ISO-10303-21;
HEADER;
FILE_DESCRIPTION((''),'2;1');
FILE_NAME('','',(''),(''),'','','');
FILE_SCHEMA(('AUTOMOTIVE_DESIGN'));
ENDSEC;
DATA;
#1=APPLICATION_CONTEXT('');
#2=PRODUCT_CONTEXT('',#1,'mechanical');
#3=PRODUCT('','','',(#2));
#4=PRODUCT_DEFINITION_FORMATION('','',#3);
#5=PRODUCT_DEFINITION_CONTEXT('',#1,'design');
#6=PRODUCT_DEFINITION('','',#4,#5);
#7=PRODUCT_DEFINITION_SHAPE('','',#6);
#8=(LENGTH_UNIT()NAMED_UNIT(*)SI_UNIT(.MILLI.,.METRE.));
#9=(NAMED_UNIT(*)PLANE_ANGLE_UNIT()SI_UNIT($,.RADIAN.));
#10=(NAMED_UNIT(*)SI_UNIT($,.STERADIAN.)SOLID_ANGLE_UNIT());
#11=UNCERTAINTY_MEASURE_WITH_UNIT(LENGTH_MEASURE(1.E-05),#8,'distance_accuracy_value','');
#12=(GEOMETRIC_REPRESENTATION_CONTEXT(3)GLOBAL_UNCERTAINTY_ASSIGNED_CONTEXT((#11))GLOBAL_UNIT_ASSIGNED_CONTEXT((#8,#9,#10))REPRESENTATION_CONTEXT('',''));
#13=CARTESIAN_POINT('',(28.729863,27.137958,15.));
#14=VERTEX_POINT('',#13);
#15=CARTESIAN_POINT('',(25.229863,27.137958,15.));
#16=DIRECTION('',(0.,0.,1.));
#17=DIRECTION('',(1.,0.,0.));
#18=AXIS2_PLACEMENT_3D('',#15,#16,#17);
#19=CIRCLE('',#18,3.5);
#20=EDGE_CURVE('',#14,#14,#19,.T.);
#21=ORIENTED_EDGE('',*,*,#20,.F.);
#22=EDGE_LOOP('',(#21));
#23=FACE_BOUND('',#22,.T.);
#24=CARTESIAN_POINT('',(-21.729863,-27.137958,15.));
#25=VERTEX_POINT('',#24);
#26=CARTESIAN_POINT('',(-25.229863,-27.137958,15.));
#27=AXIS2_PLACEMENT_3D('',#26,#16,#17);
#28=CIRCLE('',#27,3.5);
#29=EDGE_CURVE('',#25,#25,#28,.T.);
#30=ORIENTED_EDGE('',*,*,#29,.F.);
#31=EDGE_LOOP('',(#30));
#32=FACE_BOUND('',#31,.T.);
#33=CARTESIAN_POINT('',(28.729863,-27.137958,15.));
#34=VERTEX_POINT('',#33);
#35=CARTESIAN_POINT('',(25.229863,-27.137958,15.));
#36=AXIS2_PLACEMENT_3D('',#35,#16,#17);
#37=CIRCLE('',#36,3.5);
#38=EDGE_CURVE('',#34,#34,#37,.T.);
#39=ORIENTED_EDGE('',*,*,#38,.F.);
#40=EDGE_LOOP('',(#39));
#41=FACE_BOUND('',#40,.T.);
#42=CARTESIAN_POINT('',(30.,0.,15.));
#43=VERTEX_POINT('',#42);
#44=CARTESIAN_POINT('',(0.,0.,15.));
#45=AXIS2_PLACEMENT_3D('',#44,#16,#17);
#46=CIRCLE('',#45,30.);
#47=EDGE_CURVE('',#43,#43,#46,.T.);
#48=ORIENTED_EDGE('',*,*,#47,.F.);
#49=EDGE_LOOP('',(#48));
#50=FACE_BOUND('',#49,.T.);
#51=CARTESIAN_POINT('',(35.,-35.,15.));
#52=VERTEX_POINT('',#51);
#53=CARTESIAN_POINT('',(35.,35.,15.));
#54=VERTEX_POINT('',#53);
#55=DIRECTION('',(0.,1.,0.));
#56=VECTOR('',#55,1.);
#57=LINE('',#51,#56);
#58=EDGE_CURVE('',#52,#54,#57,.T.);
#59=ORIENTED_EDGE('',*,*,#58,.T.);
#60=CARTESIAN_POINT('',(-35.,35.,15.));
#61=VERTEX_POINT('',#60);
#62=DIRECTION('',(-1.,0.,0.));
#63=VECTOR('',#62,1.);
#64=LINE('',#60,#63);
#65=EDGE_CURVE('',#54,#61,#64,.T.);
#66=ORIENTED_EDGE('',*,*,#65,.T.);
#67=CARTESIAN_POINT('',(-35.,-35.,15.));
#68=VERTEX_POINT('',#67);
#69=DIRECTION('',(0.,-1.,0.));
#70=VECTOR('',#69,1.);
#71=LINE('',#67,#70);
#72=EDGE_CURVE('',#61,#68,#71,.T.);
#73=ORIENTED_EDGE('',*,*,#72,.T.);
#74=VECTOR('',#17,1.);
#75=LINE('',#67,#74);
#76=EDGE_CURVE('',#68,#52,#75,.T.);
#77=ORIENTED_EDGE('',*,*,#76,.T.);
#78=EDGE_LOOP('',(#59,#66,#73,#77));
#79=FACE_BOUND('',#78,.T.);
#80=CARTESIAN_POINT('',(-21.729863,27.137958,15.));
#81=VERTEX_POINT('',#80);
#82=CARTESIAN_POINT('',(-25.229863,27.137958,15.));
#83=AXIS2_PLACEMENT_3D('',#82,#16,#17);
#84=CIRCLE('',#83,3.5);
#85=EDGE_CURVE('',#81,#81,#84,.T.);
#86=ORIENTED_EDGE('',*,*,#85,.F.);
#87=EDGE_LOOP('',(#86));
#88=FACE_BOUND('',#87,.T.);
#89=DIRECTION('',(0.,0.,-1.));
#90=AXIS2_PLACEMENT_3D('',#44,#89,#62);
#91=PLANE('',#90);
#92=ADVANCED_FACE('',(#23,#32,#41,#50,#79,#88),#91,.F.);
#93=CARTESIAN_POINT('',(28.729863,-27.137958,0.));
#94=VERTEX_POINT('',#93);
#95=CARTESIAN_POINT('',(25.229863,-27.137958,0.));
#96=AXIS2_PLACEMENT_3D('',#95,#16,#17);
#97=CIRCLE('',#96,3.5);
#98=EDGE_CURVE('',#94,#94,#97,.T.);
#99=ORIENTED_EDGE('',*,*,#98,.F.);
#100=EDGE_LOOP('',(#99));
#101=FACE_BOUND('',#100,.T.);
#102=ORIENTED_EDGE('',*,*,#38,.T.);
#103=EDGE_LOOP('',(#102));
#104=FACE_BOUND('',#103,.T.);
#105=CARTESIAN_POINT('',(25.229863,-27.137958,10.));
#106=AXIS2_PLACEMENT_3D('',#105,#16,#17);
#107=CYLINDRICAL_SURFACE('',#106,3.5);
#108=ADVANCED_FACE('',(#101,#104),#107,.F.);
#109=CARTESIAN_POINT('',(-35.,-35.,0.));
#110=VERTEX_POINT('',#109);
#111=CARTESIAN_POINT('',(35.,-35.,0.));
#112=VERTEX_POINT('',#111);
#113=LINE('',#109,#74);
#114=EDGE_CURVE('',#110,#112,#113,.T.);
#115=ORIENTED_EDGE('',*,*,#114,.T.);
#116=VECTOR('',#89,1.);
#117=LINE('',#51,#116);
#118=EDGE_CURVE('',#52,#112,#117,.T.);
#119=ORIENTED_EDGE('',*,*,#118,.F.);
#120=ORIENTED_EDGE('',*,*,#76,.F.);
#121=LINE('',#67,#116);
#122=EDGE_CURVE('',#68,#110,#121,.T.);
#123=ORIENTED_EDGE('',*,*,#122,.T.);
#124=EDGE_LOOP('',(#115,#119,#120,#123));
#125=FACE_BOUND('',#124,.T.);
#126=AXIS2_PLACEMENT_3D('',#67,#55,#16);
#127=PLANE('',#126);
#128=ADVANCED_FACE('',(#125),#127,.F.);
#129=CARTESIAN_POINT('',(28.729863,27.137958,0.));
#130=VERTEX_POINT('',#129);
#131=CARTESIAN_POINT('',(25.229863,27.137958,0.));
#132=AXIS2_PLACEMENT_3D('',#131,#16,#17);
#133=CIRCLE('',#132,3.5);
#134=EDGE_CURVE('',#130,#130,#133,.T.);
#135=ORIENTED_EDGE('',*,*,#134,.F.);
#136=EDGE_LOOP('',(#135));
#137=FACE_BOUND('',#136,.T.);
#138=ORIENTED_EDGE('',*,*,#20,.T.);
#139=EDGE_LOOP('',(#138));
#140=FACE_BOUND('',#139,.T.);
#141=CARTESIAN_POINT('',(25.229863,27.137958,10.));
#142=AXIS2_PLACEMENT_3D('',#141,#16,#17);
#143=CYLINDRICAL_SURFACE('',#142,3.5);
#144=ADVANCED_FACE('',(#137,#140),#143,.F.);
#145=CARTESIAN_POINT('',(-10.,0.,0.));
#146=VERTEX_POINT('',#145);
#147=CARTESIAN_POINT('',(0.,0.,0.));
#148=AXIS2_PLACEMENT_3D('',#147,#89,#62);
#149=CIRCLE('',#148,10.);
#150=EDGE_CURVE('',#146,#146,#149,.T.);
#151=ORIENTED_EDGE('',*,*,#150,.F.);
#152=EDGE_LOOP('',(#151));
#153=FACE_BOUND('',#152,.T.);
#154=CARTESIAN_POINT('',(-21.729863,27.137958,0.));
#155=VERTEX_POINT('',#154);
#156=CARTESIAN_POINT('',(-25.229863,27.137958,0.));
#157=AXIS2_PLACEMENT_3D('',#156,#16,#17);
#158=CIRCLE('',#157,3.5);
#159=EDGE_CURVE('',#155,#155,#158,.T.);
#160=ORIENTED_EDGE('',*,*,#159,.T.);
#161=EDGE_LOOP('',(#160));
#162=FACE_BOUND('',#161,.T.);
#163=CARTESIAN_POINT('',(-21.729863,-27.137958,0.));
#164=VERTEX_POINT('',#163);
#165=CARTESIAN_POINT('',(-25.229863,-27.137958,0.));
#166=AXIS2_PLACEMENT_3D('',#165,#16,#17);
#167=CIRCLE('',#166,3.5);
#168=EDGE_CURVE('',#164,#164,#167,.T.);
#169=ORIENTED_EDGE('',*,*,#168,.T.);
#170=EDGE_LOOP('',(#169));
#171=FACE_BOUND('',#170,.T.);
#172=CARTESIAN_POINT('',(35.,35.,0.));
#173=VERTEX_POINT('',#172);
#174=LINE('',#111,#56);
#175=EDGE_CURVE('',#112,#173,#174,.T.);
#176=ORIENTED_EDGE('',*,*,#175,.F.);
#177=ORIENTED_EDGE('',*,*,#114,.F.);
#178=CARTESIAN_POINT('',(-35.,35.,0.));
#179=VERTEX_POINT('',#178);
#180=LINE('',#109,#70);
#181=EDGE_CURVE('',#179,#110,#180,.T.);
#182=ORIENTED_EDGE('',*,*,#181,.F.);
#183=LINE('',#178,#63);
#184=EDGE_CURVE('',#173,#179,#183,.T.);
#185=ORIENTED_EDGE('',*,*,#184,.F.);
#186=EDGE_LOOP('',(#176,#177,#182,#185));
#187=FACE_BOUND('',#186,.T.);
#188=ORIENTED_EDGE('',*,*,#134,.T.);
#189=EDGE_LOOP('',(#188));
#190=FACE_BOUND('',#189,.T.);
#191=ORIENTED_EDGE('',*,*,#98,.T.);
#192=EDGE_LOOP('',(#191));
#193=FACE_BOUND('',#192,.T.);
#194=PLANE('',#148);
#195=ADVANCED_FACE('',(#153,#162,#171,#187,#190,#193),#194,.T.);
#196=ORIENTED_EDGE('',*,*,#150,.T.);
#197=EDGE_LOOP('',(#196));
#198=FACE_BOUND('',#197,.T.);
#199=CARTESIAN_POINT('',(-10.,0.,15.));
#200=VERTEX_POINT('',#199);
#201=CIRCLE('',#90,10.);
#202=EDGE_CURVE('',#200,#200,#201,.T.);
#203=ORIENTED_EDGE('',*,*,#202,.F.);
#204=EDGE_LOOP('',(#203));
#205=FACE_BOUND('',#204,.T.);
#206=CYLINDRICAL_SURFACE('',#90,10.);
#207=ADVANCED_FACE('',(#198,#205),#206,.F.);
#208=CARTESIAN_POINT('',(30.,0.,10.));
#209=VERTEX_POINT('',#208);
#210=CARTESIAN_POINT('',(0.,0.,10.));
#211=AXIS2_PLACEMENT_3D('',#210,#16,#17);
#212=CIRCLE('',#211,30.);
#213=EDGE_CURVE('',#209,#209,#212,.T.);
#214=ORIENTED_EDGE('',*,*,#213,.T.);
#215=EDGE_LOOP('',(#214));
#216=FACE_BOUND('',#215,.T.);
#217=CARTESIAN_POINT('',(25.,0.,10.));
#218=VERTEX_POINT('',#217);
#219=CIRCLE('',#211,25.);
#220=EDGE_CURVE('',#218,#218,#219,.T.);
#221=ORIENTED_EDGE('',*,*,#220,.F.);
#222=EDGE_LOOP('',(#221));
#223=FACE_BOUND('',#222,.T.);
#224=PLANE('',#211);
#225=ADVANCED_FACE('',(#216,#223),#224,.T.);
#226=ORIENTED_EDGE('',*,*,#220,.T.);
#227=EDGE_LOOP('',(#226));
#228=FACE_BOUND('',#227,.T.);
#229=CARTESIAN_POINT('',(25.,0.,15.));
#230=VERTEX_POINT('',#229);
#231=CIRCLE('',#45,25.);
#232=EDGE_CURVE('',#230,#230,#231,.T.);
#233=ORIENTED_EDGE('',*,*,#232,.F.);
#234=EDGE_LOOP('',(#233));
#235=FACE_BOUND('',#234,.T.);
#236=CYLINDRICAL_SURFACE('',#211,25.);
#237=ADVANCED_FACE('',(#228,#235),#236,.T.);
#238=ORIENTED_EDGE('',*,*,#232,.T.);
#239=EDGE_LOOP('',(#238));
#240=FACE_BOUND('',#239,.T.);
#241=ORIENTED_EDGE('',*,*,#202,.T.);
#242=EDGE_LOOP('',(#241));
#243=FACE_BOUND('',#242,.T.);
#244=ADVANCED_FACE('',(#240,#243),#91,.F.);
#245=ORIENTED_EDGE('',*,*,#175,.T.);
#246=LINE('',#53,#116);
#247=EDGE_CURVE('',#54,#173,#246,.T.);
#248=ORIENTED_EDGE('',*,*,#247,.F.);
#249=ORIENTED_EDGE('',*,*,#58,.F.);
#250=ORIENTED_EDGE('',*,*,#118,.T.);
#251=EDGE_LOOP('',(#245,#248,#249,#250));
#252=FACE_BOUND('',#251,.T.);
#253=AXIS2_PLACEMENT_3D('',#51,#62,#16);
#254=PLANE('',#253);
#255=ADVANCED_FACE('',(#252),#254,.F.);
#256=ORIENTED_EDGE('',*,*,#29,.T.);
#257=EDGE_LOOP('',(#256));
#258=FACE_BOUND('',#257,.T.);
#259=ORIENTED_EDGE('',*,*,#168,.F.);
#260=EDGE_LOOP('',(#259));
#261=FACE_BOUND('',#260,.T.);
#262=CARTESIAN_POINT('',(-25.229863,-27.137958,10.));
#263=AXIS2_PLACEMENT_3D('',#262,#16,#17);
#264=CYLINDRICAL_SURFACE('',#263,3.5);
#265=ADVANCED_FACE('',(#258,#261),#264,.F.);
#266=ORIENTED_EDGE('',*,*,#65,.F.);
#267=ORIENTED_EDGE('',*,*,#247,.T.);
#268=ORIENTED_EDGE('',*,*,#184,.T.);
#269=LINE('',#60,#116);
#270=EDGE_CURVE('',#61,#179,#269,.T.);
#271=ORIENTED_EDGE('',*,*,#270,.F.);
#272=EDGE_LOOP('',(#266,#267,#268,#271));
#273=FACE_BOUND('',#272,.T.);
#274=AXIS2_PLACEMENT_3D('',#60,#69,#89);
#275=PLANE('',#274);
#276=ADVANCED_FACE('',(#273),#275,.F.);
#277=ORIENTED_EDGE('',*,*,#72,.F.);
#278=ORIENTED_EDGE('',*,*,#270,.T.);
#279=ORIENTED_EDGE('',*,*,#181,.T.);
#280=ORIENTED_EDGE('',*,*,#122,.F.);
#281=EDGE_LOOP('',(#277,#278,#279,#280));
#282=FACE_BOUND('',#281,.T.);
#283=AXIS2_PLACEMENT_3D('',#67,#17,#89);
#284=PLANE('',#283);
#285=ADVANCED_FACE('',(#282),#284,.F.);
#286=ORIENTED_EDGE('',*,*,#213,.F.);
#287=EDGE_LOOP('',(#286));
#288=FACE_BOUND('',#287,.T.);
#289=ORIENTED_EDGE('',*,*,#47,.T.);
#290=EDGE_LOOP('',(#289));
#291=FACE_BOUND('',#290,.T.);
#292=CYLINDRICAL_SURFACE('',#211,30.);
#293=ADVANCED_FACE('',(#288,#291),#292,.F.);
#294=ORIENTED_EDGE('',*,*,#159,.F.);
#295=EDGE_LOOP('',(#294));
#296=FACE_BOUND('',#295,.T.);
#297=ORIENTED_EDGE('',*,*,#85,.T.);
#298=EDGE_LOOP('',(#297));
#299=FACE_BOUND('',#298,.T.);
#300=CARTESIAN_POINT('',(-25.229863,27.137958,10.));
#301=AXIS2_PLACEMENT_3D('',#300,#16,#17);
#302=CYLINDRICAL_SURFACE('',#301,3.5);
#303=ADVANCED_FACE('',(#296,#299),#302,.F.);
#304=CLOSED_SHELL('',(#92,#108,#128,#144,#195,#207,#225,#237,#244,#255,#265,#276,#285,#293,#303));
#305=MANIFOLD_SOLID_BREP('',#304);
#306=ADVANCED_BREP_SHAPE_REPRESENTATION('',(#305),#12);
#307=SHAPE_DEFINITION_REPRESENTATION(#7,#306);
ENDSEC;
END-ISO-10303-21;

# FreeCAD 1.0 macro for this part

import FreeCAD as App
import Part
import Sketcher

V = App.Vector
Q = App.Units.Quantity

doc = App.newDocument("Part")
body = doc.addObject("PartDesign::Body", "Body")

sketch1 = doc.addObject("Sketcher::SketchObject", "Sketch")
body.addObject(sketch1)
sketch1.AttachmentSupport = (doc.XY_Plane, [""])
sketch1.MapMode = "FlatFace"
sketch1.addGeometry([
    Part.LineSegment(V(-35, 35, 0), V(-35, -35, 0)),
    Part.LineSegment(V(-35, -35, 0), V(35, -35, 0)),
    Part.LineSegment(V(35, -35, 0), V(35, 35, 0)),
    Part.LineSegment(V(35, 35, 0), V(-35, 35, 0)),
], False)
sketch1.addConstraint([
    Sketcher.Constraint("Coincident", 0, 2, 1, 1),
    Sketcher.Constraint("Coincident", 1, 2, 2, 1),
    Sketcher.Constraint("Coincident", 2, 2, 3, 1),
    Sketcher.Constraint("Coincident", 3, 2, 0, 1),
    Sketcher.Constraint("Vertical", 0),
    Sketcher.Constraint("Horizontal", 1),
    Sketcher.Constraint("Vertical", 2),
    Sketcher.Constraint("Horizontal", 3),
    Sketcher.Constraint("Symmetric", 0, 2, 2, 2, -1, 1),
    Sketcher.Constraint("Equal", 3, 0),
    Sketcher.Constraint("DistanceX", 1, 1, 1, 2, Q("70 mm")),
])
pad1 = doc.addObject("PartDesign::Pad", "Pad")
body.addObject(pad1)
pad1.Profile = sketch1
pad1.Length = 15

sketch2 = doc.addObject("Sketcher::SketchObject", "Sketch001")
body.addObject(sketch2)
sketch2.AttachmentSupport = (doc.XY_Plane, [""])
sketch2.MapMode = "FlatFace"
sketch2.AttachmentOffset = App.Placement(V(0, 0, 15), App.Rotation())
sketch2.addGeometry([
    Part.Circle(V(0, 0, 0), V(0, 0, 1), 30),
    Part.Circle(V(0, 0, 0), V(0, 0, 1), 25),
    Part.Circle(V(-25.2, 27.1, 0), V(0, 0, 1), 3.5),
    Part.Circle(V(25.2, 27.1, 0), V(0, 0, 1), 3.5),
    Part.Circle(V(25.2, -27.1, 0), V(0, 0, 1), 3.5),
    Part.Circle(V(-25.2, -27.1, 0), V(0, 0, 1), 3.5),
], False)
sketch2.addConstraint([
    Sketcher.Constraint("Coincident", 0, 3, -1, 1),
    Sketcher.Constraint("Coincident", 1, 3, -1, 1),
    Sketcher.Constraint("Equal", 2, 3),
    Sketcher.Constraint("Equal", 3, 4),
    Sketcher.Constraint("Equal", 4, 5),
    Sketcher.Constraint("Symmetric", 2, 3, 4, 3, -1, 1),
    Sketcher.Constraint("Symmetric", 3, 3, 5, 3, -1, 1),
    Sketcher.Constraint("Symmetric", 2, 3, 3, 3, -2),
    Sketcher.Constraint("Diameter", 0, Q("60 mm")),
    Sketcher.Constraint("Diameter", 1, Q("50 mm")),
    Sketcher.Constraint("Diameter", 2, Q("7 mm")),
    Sketcher.Constraint("DistanceY", -1, 1, 2, 3, Q("27.137958 mm")),
    Sketcher.Constraint("DistanceX", 2, 3, -1, 1, Q("25.229863 mm")),
])
pocket1 = doc.addObject("PartDesign::Pocket", "Pocket")
body.addObject(pocket1)
pocket1.Profile = sketch2
pocket1.Length = 5

sketch3 = doc.addObject("Sketcher::SketchObject", "Sketch002")
body.addObject(sketch3)
sketch3.AttachmentSupport = (doc.XY_Plane, [""])
sketch3.MapMode = "FlatFace"
sketch3.addGeometry([
    Part.Circle(V(-25.2, 27.1, 0), V(0, 0, 1), 3.5),
    Part.Circle(V(25.2, 27.1, 0), V(0, 0, 1), 3.5),
    Part.Circle(V(25.2, -27.1, 0), V(0, 0, 1), 3.5),
    Part.Circle(V(-25.2, -27.1, 0), V(0, 0, 1), 3.5),
], False)
sketch3.addConstraint([
    Sketcher.Constraint("Equal", 0, 1),
    Sketcher.Constraint("Equal", 1, 2),
    Sketcher.Constraint("Equal", 2, 3),
    Sketcher.Constraint("Symmetric", 0, 3, 2, 3, -1, 1),
    Sketcher.Constraint("Symmetric", 1, 3, 3, 3, -1, 1),
    Sketcher.Constraint("Symmetric", 0, 3, 1, 3, -2),
    Sketcher.Constraint("Diameter", 0, Q("7 mm")),
    Sketcher.Constraint("DistanceY", -1, 1, 0, 3, Q("27.137958 mm")),
    Sketcher.Constraint("DistanceX", 0, 3, -1, 1, Q("25.229863 mm")),
])
pocket2 = doc.addObject("PartDesign::Pocket", "Pocket001")
body.addObject(pocket2)
pocket2.Profile = sketch3
pocket2.Type = "ThroughAll"
pocket2.Reversed = True

sketch4 = doc.addObject("Sketcher::SketchObject", "Sketch003")
body.addObject(sketch4)
sketch4.AttachmentSupport = (doc.XY_Plane, [""])
sketch4.MapMode = "FlatFace"
sketch4.addGeometry(Part.Circle(V(0, 0, 0), V(0, 0, 1), 10), False)
sketch4.addConstraint([
    Sketcher.Constraint("Coincident", 0, 3, -1, 1),
    Sketcher.Constraint("Diameter", 0, Q("20 mm")),
])
pocket3 = doc.addObject("PartDesign::Pocket", "Pocket002")
body.addObject(pocket3)
pocket3.Profile = sketch4
pocket3.Type = "ThroughAll"
pocket3.Reversed = True

doc.recompute()
